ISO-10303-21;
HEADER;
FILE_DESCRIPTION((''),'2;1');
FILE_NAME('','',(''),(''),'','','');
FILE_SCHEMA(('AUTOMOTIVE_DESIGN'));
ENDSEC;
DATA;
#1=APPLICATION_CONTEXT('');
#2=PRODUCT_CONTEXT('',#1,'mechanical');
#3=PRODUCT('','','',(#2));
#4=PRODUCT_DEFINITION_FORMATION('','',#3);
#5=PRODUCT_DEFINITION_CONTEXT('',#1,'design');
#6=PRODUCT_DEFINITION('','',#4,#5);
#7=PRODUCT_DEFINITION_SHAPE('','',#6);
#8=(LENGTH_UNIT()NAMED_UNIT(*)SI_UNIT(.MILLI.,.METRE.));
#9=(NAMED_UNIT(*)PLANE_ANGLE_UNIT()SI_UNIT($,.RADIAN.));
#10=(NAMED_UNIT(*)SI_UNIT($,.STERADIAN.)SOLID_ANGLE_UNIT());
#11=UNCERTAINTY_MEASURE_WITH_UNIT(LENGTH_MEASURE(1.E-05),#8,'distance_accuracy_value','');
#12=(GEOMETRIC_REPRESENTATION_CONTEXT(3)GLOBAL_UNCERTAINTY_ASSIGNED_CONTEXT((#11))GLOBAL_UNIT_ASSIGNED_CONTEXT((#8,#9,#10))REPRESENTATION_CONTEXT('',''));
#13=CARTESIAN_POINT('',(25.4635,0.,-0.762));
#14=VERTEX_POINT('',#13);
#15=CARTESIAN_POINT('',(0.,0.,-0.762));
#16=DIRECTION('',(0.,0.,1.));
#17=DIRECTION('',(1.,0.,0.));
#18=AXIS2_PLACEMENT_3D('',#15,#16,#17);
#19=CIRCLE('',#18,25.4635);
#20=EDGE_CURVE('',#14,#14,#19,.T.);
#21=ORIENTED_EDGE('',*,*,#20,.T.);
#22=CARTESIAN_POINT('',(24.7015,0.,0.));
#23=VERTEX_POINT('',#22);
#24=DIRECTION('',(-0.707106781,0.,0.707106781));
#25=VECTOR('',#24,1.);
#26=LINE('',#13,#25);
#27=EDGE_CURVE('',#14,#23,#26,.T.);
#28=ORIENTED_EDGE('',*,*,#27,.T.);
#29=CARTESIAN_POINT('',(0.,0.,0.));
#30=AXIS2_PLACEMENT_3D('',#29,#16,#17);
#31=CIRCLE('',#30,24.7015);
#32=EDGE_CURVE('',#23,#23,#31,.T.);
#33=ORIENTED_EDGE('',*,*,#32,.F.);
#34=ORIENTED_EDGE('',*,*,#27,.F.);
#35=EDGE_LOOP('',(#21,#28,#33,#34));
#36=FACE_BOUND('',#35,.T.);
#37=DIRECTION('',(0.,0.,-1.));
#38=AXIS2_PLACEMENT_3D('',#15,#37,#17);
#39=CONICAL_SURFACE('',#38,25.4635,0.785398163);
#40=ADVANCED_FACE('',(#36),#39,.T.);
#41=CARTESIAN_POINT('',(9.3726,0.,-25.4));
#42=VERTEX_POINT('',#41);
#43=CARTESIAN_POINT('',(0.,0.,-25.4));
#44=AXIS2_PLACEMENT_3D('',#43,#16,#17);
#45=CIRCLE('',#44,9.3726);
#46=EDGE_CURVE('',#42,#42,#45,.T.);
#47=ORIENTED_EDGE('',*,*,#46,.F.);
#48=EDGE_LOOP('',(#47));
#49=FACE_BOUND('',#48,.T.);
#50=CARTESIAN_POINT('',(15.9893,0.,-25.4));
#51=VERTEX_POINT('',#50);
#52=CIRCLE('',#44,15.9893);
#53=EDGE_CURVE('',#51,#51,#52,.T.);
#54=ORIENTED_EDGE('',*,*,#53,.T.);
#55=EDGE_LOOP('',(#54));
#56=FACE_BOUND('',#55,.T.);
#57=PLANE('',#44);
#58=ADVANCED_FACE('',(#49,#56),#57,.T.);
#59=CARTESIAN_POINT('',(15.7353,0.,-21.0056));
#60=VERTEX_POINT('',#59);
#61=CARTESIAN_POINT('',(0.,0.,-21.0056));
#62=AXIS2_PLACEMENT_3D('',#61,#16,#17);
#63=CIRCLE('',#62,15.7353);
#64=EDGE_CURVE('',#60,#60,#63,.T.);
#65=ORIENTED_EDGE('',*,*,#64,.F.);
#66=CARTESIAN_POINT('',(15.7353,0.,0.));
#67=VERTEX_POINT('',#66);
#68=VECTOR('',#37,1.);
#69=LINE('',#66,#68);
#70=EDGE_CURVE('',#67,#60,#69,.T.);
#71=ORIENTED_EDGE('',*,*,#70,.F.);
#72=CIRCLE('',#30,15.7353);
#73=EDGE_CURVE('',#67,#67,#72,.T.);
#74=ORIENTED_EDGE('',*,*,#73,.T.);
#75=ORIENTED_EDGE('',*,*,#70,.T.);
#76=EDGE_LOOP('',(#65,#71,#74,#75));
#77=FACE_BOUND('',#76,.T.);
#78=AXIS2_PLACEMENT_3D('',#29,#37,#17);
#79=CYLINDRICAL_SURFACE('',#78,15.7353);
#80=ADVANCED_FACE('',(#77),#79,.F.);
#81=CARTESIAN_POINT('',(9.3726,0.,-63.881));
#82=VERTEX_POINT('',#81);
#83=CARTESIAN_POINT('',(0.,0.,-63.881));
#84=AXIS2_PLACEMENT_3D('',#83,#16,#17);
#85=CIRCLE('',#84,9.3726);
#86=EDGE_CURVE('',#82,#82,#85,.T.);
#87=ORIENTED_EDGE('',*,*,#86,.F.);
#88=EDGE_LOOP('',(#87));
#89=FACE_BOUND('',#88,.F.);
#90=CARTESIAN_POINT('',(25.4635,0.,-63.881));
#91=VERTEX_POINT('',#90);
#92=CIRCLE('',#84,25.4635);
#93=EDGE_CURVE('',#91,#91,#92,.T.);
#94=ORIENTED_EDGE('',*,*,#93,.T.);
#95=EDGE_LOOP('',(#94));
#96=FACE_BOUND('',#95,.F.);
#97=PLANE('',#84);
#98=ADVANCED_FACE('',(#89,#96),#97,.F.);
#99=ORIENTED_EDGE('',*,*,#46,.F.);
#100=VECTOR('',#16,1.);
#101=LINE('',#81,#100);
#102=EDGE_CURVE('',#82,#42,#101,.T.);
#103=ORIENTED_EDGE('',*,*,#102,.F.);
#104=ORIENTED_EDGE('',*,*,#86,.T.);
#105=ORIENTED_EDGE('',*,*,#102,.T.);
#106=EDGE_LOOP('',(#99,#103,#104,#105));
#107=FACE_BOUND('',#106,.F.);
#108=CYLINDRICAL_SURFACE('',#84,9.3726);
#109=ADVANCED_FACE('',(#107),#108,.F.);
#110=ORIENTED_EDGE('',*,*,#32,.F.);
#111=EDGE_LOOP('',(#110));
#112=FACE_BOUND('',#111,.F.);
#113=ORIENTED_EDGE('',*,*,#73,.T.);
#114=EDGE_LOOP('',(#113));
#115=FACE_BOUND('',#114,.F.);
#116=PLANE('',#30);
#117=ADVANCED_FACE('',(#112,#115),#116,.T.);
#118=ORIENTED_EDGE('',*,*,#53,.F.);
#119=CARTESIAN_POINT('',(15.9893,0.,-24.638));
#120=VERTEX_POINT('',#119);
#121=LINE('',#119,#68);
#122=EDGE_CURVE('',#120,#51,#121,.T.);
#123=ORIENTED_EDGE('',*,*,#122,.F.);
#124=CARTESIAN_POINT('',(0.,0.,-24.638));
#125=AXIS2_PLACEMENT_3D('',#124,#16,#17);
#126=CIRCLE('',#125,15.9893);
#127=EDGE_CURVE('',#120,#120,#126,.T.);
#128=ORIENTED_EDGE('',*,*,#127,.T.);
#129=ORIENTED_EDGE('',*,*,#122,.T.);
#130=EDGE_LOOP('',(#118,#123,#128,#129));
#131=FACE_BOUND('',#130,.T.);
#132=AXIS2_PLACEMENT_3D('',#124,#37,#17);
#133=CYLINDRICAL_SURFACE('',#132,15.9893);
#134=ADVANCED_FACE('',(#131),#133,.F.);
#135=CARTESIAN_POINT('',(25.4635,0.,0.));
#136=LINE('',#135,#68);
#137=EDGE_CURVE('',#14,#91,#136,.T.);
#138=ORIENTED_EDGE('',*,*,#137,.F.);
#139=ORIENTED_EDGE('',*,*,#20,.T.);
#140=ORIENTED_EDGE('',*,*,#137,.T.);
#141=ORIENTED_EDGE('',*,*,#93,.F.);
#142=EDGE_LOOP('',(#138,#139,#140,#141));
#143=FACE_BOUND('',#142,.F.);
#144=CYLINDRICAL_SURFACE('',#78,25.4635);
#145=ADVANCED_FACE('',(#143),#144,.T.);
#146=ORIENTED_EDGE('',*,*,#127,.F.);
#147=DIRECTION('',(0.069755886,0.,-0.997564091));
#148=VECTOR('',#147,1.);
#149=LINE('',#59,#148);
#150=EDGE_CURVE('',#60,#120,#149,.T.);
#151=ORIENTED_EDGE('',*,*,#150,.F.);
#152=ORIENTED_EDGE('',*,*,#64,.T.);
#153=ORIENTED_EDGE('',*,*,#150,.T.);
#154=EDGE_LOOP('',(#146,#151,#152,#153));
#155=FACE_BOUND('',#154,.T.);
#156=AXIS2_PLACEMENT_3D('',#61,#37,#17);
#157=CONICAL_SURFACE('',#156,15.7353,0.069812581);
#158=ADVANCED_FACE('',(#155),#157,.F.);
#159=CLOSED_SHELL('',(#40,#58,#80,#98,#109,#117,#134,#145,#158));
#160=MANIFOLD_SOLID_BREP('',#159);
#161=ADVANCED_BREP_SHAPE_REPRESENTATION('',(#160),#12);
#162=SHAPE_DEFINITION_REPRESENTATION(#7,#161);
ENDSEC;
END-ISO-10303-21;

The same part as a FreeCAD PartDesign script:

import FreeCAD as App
import Part
import Sketcher
Q = App.Units.Quantity


def edges_at(feature, points):
    """Names of the edges that pass closest to the given points."""
    edges = feature.Shape.Edges
    near = lambda p: min(range(len(edges)), key=lambda i: edges[i].distToShape(Part.Vertex(*p))[0])
    return sorted({f"Edge{near(p) + 1}" for p in points})

doc = App.newDocument("Part")
body = doc.addObject("PartDesign::Body", "Body")

sketch1 = doc.addObject("Sketcher::SketchObject", "Sketch")
body.addObject(sketch1)
sketch1.AttachmentSupport = (doc.XZ_Plane, [""])
sketch1.MapMode = "FlatFace"
sketch1.addGeometry(Part.LineSegment(App.Vector(25.5, 0, 0), App.Vector(25.5, -63.9, 0)), False)
sketch1.addGeometry(Part.LineSegment(App.Vector(25.5, -63.9, 0), App.Vector(9.4, -63.9, 0)), False)
sketch1.addGeometry(Part.LineSegment(App.Vector(9.4, -63.9, 0), App.Vector(9.4, -25.4, 0)), False)
sketch1.addGeometry(Part.LineSegment(App.Vector(9.4, -25.4, 0), App.Vector(16, -25.4, 0)), False)
sketch1.addGeometry(Part.LineSegment(App.Vector(16, -25.4, 0), App.Vector(16, -24.6, 0)), False)
sketch1.addGeometry(Part.LineSegment(App.Vector(16, -24.6, 0), App.Vector(15.7, -21, 0)), False)
sketch1.addGeometry(Part.LineSegment(App.Vector(15.7, -21, 0), App.Vector(15.7, 0, 0)), False)
sketch1.addGeometry(Part.LineSegment(App.Vector(15.7, 0, 0), App.Vector(25.5, 0, 0)), False)
sketch1.addConstraint(Sketcher.Constraint("Coincident", 0, 2, 1, 1))
sketch1.addConstraint(Sketcher.Constraint("Coincident", 1, 2, 2, 1))
sketch1.addConstraint(Sketcher.Constraint("Coincident", 2, 2, 3, 1))
sketch1.addConstraint(Sketcher.Constraint("Coincident", 3, 2, 4, 1))
sketch1.addConstraint(Sketcher.Constraint("Coincident", 4, 2, 5, 1))
sketch1.addConstraint(Sketcher.Constraint("Coincident", 5, 2, 6, 1))
sketch1.addConstraint(Sketcher.Constraint("Coincident", 6, 2, 7, 1))
sketch1.addConstraint(Sketcher.Constraint("Coincident", 7, 2, 0, 1))
sketch1.addConstraint(Sketcher.Constraint("Vertical", 0))
sketch1.addConstraint(Sketcher.Constraint("Horizontal", 1))
sketch1.addConstraint(Sketcher.Constraint("Vertical", 2))
sketch1.addConstraint(Sketcher.Constraint("Horizontal", 3))
sketch1.addConstraint(Sketcher.Constraint("Vertical", 4))
sketch1.addConstraint(Sketcher.Constraint("Vertical", 6))
sketch1.addConstraint(Sketcher.Constraint("Horizontal", 7))
sketch1.addConstraint(Sketcher.Constraint("PointOnObject", 6, 2, -1))
sketch1.addConstraint(Sketcher.Constraint("DistanceY", 2, 2, -1, 1, Q("1 in")))
sketch1.addConstraint(Sketcher.Constraint("DistanceY", 4, 1, 4, 2, Q("0.03 in")))
sketch1.addConstraint(Sketcher.Constraint("DistanceY", 0, 2, 0, 1, Q("2.515 in")))
sketch1.addConstraint(Sketcher.Constraint("DistanceX", 5, 2, 4, 2, Q("0.01 in")))
sketch1.addConstraint(Sketcher.Constraint("DistanceX", -1, 1, 1, 2, Q("0.369 in")))
sketch1.addConstraint(Sketcher.Constraint("Angle", 5, Q("94 deg")))
sketch1.addConstraint(Sketcher.Constraint("DistanceX", -1, 1, 0, 2, Q("1.0025 in")))
sketch1.addConstraint(Sketcher.Constraint("DistanceX", -1, 1, 5, 2, Q("0.6195 in")))
revolution = doc.addObject("PartDesign::Revolution", "Revolution")
body.addObject(revolution)
revolution.Profile = sketch1
revolution.ReferenceAxis = (sketch1, ["V_Axis"])
revolution.Angle = 360
doc.recompute()

chamfer = doc.addObject("PartDesign::Chamfer", "Chamfer")
body.addObject(chamfer)
chamfer.Base = (revolution, edges_at(revolution, [(-23.74, -9.208, 0)]))
chamfer.Size = Q("0.03 in")

doc.recompute()
